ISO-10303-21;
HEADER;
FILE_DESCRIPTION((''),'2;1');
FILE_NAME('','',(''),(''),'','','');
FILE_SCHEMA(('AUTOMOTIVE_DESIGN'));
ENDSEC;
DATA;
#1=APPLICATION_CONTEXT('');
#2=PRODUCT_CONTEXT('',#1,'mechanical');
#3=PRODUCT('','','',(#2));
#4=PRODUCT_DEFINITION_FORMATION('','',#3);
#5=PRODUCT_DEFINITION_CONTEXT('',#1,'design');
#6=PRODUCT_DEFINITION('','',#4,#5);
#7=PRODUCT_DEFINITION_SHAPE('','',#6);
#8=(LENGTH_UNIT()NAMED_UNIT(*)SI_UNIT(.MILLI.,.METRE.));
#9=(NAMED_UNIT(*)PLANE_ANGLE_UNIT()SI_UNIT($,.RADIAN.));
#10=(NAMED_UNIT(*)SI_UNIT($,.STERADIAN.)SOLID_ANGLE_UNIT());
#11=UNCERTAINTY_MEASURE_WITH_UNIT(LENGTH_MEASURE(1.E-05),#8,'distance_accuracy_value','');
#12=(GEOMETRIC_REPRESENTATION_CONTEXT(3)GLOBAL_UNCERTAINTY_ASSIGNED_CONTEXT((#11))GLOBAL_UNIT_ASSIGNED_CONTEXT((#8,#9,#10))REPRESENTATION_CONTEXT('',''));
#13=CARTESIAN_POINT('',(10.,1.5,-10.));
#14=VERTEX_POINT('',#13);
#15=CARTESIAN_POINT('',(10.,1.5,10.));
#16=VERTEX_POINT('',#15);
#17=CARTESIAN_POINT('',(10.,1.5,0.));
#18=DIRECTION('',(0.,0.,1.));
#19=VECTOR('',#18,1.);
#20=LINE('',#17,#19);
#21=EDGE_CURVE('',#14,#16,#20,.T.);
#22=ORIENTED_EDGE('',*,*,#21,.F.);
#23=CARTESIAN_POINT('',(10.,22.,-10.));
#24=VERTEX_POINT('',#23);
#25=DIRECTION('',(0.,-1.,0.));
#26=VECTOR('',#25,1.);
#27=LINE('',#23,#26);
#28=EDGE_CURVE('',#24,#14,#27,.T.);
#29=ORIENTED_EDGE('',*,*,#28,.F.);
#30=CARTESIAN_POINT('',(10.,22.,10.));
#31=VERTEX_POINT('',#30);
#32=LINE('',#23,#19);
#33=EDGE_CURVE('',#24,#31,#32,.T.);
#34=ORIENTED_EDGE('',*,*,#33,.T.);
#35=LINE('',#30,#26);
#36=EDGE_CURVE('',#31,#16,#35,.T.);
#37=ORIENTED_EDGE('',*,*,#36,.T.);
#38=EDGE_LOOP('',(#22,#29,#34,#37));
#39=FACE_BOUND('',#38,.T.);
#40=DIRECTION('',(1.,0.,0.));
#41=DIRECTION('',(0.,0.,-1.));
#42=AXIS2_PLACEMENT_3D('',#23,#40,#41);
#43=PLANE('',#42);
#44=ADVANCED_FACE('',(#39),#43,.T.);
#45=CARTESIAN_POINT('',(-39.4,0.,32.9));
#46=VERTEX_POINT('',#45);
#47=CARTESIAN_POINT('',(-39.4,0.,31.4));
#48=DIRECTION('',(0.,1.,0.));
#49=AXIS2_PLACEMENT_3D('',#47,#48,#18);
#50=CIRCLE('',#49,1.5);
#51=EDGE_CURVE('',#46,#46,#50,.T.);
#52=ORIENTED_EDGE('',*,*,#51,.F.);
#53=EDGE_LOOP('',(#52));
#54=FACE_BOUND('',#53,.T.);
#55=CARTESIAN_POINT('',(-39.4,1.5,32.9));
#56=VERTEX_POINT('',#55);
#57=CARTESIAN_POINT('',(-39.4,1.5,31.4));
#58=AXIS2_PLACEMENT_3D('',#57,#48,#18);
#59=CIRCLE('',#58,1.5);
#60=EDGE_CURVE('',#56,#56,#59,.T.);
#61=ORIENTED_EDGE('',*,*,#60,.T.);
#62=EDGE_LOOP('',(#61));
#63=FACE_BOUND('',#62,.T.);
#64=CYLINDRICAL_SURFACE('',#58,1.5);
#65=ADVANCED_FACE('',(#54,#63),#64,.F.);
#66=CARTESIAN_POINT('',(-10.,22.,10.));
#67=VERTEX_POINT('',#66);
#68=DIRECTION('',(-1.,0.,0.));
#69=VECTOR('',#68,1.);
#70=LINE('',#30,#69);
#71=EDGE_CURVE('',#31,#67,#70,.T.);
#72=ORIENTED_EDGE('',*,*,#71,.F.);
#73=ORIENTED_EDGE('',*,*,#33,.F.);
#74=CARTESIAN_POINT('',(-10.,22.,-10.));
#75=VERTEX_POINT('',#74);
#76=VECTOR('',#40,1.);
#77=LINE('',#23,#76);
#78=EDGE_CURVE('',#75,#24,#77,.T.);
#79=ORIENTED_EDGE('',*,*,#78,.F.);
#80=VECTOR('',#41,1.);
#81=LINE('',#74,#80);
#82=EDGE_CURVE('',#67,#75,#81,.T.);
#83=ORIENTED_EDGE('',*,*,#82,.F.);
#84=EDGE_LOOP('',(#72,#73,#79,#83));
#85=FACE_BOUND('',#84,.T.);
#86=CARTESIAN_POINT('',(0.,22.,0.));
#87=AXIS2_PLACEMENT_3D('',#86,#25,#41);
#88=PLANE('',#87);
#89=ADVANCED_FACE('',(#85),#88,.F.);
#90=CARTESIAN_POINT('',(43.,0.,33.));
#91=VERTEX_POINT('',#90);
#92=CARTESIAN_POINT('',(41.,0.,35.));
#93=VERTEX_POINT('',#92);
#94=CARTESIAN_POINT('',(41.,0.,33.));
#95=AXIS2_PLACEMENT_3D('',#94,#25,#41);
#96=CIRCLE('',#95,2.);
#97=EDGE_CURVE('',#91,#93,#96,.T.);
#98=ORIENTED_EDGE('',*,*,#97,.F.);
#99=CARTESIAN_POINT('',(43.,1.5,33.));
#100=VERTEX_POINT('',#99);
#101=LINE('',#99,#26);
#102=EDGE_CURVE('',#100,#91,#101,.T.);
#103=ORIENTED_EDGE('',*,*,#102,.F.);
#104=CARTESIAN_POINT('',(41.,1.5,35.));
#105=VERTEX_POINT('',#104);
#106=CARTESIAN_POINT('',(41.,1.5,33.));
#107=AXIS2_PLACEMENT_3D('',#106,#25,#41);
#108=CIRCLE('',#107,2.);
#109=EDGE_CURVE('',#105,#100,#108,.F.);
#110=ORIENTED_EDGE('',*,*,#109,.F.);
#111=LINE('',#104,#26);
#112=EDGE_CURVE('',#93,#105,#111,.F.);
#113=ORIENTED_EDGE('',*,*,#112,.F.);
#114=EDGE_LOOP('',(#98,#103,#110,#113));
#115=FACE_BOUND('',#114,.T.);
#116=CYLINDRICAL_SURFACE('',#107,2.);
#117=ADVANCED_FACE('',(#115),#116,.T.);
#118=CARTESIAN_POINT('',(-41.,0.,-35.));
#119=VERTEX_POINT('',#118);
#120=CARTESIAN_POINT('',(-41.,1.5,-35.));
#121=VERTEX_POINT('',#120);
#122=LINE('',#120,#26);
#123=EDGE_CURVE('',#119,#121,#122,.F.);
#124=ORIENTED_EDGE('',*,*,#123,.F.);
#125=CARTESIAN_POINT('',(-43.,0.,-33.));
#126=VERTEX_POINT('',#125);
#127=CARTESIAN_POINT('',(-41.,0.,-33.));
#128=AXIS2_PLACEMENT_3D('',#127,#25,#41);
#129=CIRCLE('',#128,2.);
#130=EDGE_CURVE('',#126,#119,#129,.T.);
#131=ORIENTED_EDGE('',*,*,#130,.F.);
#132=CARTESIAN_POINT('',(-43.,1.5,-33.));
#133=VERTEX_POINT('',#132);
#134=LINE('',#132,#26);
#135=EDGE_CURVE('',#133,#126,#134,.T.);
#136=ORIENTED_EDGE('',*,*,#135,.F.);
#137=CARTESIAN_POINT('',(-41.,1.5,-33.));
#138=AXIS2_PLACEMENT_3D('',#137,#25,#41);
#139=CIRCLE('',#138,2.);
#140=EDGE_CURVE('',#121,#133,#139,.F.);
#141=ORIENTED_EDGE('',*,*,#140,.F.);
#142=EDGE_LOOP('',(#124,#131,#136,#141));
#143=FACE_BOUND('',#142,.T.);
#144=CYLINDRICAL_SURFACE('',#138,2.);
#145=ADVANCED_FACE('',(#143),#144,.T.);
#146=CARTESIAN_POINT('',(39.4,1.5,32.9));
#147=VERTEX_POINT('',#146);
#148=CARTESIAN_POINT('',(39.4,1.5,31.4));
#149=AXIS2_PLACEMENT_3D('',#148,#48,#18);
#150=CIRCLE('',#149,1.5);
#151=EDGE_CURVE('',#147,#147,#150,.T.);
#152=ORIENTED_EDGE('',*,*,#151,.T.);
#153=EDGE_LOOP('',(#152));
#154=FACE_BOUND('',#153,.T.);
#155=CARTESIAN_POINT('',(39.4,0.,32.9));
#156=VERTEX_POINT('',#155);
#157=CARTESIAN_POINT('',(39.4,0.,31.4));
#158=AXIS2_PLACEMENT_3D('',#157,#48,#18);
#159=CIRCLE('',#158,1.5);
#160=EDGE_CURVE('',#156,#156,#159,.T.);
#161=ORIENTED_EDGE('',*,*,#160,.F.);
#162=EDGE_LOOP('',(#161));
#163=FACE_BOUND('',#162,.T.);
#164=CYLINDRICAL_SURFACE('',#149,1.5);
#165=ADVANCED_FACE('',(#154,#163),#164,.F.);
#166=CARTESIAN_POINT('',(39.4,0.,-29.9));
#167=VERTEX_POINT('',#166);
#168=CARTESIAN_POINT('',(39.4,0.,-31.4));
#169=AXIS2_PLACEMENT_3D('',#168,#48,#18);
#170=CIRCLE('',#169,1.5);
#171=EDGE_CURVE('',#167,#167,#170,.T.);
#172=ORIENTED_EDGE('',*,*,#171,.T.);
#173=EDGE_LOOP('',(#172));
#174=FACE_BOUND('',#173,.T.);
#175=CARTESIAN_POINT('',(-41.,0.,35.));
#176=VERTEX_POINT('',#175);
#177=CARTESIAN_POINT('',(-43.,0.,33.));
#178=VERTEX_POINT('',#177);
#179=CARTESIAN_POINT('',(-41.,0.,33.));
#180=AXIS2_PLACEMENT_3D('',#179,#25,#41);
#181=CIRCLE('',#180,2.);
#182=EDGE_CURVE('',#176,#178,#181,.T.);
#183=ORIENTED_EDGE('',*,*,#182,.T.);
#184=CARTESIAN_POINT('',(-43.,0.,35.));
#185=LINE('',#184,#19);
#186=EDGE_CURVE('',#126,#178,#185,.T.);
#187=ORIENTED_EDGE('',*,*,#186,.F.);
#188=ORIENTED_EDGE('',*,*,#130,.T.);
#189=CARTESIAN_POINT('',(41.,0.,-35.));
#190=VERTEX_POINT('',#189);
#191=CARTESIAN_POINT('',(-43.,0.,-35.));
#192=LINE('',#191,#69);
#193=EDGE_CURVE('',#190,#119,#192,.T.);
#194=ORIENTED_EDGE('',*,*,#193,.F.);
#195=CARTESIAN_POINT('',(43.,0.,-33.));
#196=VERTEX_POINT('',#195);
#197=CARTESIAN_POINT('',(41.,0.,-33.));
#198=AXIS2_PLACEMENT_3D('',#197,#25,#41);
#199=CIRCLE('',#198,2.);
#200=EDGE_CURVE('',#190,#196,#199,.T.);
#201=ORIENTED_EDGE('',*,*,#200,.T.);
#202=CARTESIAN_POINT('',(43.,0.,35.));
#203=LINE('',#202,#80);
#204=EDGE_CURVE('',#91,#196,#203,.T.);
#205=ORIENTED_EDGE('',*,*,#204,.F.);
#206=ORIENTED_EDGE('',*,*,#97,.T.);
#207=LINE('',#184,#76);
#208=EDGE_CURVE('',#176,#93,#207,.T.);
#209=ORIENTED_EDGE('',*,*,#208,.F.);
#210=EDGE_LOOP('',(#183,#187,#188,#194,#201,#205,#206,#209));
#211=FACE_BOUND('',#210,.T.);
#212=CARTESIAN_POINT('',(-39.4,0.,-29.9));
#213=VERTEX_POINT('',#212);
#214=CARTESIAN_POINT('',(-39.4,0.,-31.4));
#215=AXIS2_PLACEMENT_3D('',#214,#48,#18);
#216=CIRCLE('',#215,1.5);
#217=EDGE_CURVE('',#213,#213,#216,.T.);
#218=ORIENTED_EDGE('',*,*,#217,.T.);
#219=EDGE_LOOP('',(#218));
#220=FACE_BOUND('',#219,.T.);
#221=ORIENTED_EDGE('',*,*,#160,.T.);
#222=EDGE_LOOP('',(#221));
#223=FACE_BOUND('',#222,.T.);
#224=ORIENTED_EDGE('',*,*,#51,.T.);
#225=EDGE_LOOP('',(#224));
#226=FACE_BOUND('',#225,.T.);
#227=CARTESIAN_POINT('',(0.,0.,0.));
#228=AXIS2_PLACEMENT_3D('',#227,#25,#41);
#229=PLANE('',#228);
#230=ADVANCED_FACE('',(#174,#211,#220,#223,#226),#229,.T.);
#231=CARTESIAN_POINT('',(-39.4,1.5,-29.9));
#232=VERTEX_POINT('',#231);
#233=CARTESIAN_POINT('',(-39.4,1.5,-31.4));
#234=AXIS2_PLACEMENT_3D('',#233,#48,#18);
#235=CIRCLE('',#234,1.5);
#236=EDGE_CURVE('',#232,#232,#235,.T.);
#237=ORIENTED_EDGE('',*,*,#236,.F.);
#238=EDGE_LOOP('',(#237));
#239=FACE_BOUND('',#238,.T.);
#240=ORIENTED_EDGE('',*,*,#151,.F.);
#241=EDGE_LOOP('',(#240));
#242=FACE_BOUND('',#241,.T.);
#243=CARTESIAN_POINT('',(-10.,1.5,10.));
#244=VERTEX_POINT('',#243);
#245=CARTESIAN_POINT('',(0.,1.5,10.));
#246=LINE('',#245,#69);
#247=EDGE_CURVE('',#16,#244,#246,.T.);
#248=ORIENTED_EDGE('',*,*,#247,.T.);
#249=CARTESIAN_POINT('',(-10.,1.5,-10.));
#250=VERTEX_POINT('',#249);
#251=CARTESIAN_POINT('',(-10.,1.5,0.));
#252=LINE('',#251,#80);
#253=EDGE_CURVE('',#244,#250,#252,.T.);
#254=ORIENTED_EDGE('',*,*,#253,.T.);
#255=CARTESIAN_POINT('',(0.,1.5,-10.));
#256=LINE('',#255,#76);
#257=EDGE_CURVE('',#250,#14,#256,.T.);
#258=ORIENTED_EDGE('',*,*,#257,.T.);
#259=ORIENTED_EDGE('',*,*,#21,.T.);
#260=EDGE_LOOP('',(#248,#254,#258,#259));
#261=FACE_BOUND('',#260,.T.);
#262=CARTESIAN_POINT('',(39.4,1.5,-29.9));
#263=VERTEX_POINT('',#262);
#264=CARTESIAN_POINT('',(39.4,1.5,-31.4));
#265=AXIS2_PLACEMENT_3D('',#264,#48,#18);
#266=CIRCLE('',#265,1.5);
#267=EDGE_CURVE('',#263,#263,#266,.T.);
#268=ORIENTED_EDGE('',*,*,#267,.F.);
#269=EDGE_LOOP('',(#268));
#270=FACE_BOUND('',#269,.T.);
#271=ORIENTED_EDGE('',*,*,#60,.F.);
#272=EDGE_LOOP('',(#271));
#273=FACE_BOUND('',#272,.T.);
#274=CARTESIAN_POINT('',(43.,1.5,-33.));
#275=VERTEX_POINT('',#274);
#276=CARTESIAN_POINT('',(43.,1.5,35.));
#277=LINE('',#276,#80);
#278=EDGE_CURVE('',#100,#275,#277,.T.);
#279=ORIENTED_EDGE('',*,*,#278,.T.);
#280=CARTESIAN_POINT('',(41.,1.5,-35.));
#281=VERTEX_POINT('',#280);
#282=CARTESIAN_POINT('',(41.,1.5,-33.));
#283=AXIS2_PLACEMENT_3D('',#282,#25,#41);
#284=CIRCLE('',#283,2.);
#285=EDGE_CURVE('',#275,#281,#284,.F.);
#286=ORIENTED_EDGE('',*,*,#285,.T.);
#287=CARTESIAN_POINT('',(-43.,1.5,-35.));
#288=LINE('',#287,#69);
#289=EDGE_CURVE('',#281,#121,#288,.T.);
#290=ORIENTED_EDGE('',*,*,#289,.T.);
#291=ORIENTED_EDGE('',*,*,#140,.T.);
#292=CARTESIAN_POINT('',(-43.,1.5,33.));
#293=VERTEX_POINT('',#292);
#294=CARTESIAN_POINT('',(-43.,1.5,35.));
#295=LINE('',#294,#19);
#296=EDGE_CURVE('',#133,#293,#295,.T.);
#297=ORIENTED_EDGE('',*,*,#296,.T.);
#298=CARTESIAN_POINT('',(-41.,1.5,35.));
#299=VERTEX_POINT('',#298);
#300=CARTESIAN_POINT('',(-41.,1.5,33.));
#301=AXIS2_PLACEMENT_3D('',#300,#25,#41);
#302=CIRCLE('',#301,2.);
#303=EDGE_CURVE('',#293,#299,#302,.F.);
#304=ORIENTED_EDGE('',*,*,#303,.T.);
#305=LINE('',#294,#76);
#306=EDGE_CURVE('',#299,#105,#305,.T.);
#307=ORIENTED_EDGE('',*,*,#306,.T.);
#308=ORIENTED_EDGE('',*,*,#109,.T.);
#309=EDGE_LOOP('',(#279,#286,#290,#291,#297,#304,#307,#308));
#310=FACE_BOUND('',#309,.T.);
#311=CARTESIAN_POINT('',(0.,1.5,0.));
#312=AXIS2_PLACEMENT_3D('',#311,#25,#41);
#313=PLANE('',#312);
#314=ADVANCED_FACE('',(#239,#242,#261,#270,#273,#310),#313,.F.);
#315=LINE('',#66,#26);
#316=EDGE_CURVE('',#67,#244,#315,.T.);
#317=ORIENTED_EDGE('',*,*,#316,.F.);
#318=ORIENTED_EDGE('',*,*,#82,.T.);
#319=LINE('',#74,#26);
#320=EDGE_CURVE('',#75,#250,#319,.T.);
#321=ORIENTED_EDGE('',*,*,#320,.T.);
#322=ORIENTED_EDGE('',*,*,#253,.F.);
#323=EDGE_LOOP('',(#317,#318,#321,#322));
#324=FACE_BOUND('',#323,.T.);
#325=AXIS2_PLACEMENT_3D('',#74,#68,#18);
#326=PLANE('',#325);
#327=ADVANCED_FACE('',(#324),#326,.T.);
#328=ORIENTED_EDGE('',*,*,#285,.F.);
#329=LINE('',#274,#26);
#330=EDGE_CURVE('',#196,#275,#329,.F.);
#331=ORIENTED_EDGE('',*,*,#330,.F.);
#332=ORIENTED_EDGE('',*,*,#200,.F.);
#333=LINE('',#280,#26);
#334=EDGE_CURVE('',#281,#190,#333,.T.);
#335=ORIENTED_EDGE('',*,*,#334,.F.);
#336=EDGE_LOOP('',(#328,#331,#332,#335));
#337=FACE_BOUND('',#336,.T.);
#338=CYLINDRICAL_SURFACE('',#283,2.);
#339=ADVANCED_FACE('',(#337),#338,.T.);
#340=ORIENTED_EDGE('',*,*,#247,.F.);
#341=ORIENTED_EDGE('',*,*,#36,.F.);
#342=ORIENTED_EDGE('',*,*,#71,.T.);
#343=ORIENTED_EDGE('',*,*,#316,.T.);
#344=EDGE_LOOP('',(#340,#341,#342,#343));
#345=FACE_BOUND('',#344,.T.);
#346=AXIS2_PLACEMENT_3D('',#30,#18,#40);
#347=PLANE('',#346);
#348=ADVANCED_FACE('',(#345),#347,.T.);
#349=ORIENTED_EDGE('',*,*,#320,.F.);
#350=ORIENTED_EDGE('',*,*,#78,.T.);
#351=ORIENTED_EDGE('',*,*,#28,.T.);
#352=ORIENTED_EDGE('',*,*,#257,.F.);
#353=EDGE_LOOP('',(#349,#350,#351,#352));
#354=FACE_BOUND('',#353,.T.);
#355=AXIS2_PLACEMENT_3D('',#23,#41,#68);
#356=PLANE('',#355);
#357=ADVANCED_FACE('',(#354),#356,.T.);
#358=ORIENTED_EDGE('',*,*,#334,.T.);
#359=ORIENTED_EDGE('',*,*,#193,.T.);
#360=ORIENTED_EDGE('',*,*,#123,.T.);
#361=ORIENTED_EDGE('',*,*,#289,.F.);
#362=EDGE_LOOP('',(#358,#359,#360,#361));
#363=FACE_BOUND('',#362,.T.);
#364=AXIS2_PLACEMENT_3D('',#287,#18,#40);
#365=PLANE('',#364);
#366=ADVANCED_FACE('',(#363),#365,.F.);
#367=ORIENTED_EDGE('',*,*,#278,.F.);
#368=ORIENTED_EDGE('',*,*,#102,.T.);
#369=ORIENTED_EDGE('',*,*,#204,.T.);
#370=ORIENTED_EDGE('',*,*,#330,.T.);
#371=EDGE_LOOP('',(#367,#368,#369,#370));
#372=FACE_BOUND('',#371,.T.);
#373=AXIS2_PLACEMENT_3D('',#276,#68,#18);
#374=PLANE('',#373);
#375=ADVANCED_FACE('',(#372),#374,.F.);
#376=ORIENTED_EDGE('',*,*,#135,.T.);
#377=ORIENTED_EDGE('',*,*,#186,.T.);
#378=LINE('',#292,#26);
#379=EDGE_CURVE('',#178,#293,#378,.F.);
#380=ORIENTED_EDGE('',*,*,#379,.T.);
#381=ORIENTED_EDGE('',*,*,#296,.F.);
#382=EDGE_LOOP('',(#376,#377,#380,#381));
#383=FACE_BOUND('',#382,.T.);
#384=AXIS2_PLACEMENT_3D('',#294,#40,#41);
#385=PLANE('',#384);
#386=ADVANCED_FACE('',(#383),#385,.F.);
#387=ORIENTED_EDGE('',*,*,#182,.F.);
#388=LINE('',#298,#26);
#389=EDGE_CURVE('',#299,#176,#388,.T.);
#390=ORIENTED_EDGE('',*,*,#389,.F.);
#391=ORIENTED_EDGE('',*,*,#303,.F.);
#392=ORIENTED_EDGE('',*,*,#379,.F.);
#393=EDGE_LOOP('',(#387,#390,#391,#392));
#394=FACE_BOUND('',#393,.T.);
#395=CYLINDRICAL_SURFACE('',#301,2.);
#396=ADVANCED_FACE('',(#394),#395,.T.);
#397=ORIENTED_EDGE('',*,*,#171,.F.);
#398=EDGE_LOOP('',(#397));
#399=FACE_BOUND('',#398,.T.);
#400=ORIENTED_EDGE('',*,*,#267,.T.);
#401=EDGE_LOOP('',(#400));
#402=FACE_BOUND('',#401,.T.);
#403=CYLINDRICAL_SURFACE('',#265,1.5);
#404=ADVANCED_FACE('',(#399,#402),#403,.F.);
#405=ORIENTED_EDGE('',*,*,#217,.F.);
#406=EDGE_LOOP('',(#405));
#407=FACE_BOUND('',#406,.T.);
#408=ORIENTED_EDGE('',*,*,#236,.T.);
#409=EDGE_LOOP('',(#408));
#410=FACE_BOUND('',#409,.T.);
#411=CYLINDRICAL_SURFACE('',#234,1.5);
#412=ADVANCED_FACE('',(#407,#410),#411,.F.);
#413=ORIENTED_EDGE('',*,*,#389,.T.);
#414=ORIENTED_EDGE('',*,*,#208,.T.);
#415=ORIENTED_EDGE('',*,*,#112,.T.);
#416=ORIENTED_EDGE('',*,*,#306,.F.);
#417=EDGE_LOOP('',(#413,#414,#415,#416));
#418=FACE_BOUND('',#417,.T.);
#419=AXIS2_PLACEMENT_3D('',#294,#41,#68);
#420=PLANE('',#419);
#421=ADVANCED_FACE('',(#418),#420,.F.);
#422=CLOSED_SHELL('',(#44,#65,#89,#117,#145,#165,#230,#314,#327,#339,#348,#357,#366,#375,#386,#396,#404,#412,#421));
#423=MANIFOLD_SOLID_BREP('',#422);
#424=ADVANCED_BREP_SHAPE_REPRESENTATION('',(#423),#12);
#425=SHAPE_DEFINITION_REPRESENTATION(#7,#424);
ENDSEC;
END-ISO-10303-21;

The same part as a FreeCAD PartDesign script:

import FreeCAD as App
import Part
import Sketcher
Q = App.Units.Quantity


def edges_at(feature, points):
    """Names of the edges that pass closest to the given points."""
    edges = feature.Shape.Edges
    near = lambda p: min(range(len(edges)), key=lambda i: edges[i].distToShape(Part.Vertex(*p))[0])
    return sorted({f"Edge{near(p) + 1}" for p in points})


def add_polygon(sketch, points):
    """Adds a closed chain of lines whose ends are joined by coincident constraints."""
    first, n = sketch.GeometryCount, len(points)
    for a, b in zip(points, points[1:] + points[:1]):
        sketch.addGeometry(Part.LineSegment(App.Vector(*a, 0), App.Vector(*b, 0)), False)
    for i in range(n):
        sketch.addConstraint(Sketcher.Constraint("Coincident", first + i, 2, first + (i + 1) % n, 1))

doc = App.newDocument("Part")
params = doc.addObject("Spreadsheet::Sheet", "Params")
for row, (alias, value) in enumerate([
    ("sketch1_width", "86 mm"),
    ("sketch1_height", "70 mm"),
    ("pad1_length", "1.5 mm"),
    ("fillet_radius", "2 mm"),
    ("sketch2_width", "20 mm"),
    ("pad2_length", "22 mm"),
    ("sketch3_diameter", "3 mm"),
    ("hole_diameter", "3 mm"),
], start=1):
    params.set(f"A{row}", alias)
    params.set(f"B{row}", "=" + value)
    params.setAlias(f"B{row}", alias)

body = doc.addObject("PartDesign::Body", "Body")

sketch1 = doc.addObject("Sketcher::SketchObject", "Sketch")
body.addObject(sketch1)
sketch1.AttachmentSupport = (doc.XZ_Plane, [""])
sketch1.MapMode = "FlatFace"
add_polygon(sketch1, [(-43, -35), (-43, 35), (43, 35), (43, -35)])
sketch1.addConstraint([
    Sketcher.Constraint("Vertical", 0),
    Sketcher.Constraint("Horizontal", 1),
    Sketcher.Constraint("Vertical", 2),
    Sketcher.Constraint("Horizontal", 3),
    Sketcher.Constraint("Symmetric", 0, 2, 2, 2, -1, 1),
    Sketcher.Constraint("DistanceX", 1, 1, 1, 2, Q("86 mm")),
    Sketcher.Constraint("DistanceY", 0, 1, 0, 2, Q("70 mm")),
])
sketch1.setExpression("Constraints[9]", "Params.sketch1_width")
sketch1.setExpression("Constraints[10]", "Params.sketch1_height")
pad1 = doc.addObject("PartDesign::Pad", "Pad")
body.addObject(pad1)
pad1.Profile = sketch1
pad1.setExpression("Length", "Params.pad1_length")
pad1.Reversed = True
doc.recompute()

fillet = doc.addObject("PartDesign::Fillet", "Fillet")
body.addObject(fillet)
fillet.Base = (pad1, edges_at(pad1, [
    (43, 0.75, 35),
    (-43, 0.75, 35),
    (-43, 0.75, -35),
    (43, 0.75, -35),
]))
fillet.setExpression("Radius", "Params.fillet_radius")

sketch2 = doc.addObject("Sketcher::SketchObject", "Sketch001")
body.addObject(sketch2)
sketch2.AttachmentSupport = (doc.XZ_Plane, [""])
sketch2.MapMode = "FlatFace"
add_polygon(sketch2, [(-10, 10), (-10, -10), (10, -10), (10, 10)])
sketch2.addConstraint([
    Sketcher.Constraint("Vertical", 0),
    Sketcher.Constraint("Horizontal", 1),
    Sketcher.Constraint("Vertical", 2),
    Sketcher.Constraint("Horizontal", 3),
    Sketcher.Constraint("Symmetric", 0, 2, 2, 2, -1, 1),
    Sketcher.Constraint("Equal", 3, 0),
    Sketcher.Constraint("DistanceX", 1, 1, 1, 2, Q("20 mm")),
])
sketch2.setExpression("Constraints[10]", "Params.sketch2_width")
pad2 = doc.addObject("PartDesign::Pad", "Pad001")
body.addObject(pad2)
pad2.Profile = sketch2
pad2.setExpression("Length", "Params.pad2_length")
pad2.Reversed = True

sketch3 = doc.addObject("Sketcher::SketchObject", "Sketch002")
body.addObject(sketch3)
sketch3.AttachmentSupport = (doc.XZ_Plane, [""])
sketch3.MapMode = "FlatFace"
sketch3.AttachmentOffset = App.Placement(App.Vector(0, 0, -1.5), App.Rotation())
sketch3.addGeometry([
    Part.Circle(App.Vector(-39.4, -31.4, 0), App.Vector(0, 0, 1), 1.5),
    Part.Circle(App.Vector(39.4, -31.4, 0), App.Vector(0, 0, 1), 1.5),
    Part.Circle(App.Vector(-39.4, 31.4, 0), App.Vector(0, 0, 1), 1.5),
    Part.Circle(App.Vector(39.4, 31.4, 0), App.Vector(0, 0, 1), 1.5),
], False)
sketch3.addConstraint([
    Sketcher.Constraint("Equal", 0, 1),
    Sketcher.Constraint("Equal", 1, 2),
    Sketcher.Constraint("Equal", 2, 3),
    Sketcher.Constraint("Symmetric", 1, 3, 2, 3, -1, 1),
    Sketcher.Constraint("Symmetric", 0, 3, 3, 3, -1, 1),
    Sketcher.Constraint("Symmetric", 0, 3, 1, 3, -2),
    Sketcher.Constraint("Diameter", 0, Q("3 mm")),
    Sketcher.Constraint("DistanceX", 0, 3, -1, 1, Q("39.4 mm")),
    Sketcher.Constraint("DistanceY", 0, 3, -1, 1, Q("31.4 mm")),
])
sketch3.setExpression("Constraints[6]", "Params.sketch3_diameter")
doc.recompute()
hole = doc.addObject("PartDesign::Hole", "Hole")
body.addObject(hole)
hole.Profile = sketch3
hole.ThreadType = "None"
hole.setExpression("Diameter", "Params.hole_diameter")
hole.DepthType = "ThroughAll"
hole.Reversed = True

doc.recompute()
